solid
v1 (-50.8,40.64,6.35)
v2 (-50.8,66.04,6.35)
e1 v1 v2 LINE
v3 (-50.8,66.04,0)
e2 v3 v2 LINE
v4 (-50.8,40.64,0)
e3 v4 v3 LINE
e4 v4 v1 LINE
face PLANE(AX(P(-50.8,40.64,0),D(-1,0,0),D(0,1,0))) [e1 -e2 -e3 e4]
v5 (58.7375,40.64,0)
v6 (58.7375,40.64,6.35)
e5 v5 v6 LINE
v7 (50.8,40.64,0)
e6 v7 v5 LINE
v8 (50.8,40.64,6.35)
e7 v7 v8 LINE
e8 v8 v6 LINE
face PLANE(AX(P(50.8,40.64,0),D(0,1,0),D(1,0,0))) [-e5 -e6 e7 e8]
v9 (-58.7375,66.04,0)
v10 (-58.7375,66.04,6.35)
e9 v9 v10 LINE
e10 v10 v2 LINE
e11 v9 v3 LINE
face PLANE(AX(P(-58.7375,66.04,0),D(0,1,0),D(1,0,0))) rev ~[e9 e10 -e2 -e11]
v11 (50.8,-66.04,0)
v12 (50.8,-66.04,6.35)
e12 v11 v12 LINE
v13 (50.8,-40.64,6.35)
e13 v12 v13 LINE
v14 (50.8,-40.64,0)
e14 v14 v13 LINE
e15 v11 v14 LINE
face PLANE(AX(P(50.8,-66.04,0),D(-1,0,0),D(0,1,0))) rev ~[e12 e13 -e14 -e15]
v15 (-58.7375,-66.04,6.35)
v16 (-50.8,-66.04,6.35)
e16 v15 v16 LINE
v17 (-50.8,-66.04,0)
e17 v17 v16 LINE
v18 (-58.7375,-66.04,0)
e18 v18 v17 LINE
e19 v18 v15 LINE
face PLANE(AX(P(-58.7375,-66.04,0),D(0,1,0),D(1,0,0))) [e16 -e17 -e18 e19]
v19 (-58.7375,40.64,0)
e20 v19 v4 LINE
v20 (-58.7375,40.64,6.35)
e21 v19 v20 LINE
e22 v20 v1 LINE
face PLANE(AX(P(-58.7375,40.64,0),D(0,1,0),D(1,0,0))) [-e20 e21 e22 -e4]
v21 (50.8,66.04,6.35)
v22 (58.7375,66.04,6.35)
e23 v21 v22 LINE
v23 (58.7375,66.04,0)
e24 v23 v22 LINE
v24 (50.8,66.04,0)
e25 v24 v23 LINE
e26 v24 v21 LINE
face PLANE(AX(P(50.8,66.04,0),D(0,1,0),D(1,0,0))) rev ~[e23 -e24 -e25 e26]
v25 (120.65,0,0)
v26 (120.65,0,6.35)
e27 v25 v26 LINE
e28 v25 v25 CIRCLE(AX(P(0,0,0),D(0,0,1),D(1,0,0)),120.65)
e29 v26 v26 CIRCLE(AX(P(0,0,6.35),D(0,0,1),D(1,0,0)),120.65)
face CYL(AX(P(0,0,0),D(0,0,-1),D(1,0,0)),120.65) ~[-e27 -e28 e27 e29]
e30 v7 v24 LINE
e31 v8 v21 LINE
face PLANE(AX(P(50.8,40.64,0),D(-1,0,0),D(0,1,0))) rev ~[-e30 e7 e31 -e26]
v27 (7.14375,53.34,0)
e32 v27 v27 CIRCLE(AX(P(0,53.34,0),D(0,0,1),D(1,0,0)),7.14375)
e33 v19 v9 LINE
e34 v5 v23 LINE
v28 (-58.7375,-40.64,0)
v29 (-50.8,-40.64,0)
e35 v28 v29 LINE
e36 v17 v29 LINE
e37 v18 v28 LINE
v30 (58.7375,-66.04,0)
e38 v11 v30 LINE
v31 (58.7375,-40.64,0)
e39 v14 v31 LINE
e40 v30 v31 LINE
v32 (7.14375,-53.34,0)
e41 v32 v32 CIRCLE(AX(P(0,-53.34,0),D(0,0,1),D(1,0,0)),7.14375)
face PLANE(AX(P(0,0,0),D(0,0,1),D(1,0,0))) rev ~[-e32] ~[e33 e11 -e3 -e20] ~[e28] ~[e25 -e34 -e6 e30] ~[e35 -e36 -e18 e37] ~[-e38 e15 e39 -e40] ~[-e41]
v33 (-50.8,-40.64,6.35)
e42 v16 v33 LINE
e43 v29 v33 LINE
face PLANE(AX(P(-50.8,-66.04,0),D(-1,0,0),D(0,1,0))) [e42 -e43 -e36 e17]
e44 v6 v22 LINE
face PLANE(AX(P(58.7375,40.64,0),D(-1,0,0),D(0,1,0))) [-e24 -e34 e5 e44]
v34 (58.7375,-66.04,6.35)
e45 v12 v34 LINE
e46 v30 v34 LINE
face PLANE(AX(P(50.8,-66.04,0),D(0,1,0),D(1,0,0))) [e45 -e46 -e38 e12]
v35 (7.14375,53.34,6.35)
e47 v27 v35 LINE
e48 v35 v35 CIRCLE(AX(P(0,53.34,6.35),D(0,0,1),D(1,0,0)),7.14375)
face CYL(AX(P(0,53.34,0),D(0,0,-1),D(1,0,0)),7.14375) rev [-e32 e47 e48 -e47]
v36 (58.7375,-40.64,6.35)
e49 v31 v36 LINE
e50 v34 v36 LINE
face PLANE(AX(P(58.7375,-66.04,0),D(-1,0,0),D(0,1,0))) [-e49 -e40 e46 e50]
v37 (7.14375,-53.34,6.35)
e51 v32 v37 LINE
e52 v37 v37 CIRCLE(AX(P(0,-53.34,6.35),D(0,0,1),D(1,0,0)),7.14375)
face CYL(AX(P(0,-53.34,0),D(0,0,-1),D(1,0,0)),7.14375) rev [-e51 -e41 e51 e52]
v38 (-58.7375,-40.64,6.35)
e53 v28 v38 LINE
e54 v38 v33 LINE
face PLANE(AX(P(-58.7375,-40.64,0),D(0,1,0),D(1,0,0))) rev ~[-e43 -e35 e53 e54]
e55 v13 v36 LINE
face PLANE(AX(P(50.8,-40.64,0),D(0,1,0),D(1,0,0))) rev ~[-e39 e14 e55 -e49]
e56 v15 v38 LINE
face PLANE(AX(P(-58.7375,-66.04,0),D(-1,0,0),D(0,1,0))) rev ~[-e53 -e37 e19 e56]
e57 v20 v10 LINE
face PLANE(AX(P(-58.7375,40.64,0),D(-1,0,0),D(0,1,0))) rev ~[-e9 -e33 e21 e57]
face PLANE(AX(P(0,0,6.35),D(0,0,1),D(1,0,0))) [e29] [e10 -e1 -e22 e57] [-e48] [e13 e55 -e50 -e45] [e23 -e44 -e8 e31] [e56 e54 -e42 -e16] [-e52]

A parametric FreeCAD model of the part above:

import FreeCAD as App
import Part
import Sketcher

V = App.Vector
Q = App.Units.Quantity

doc = App.newDocument("Part")
body = doc.addObject("PartDesign::Body", "Body")

# Sketch on XY plane
sketch1 = doc.addObject("Sketcher::SketchObject", "Sketch")
body.addObject(sketch1)
sketch1.AttachmentSupport = (doc.XY_Plane, [""])
sketch1.MapMode = "FlatFace"
sketch1.addGeometry([
    Part.Circle(V(0, 0, 0), V(0, 0, 1), 121),  # 0
    Part.LineSegment(V(-51, -66, 0), V(-59, -66, 0)),  # 1
    Part.LineSegment(V(-59, -66, 0), V(-59, -41, 0)),  # 2
    Part.LineSegment(V(-59, -41, 0), V(-51, -41, 0)),  # 3
    Part.LineSegment(V(-51, -41, 0), V(-51, -66, 0)),  # 4
    Part.Circle(V(0, -53, 0), V(0, 0, 1), 7),  # 5
    Part.LineSegment(V(59, -66, 0), V(51, -66, 0)),  # 6
    Part.LineSegment(V(51, -66, 0), V(51, -41, 0)),  # 7
    Part.LineSegment(V(51, -41, 0), V(59, -41, 0)),  # 8
    Part.LineSegment(V(59, -41, 0), V(59, -66, 0)),  # 9
    Part.LineSegment(V(-51, 41, 0), V(-59, 41, 0)),  # 10
    Part.LineSegment(V(-59, 41, 0), V(-59, 66, 0)),  # 11
    Part.LineSegment(V(-59, 66, 0), V(-51, 66, 0)),  # 12
    Part.LineSegment(V(-51, 66, 0), V(-51, 41, 0)),  # 13
    Part.Circle(V(0, 53, 0), V(0, 0, 1), 7),  # 14
    Part.LineSegment(V(59, 41, 0), V(51, 41, 0)),  # 15
    Part.LineSegment(V(51, 41, 0), V(51, 66, 0)),  # 16
    Part.LineSegment(V(51, 66, 0), V(59, 66, 0)),  # 17
    Part.LineSegment(V(59, 66, 0), V(59, 41, 0)),  # 18
], False)
sketch1.addConstraint([
    Sketcher.Constraint("Coincident", 1, 2, 2, 1),
    Sketcher.Constraint("Coincident", 2, 2, 3, 1),
    Sketcher.Constraint("Coincident", 3, 2, 4, 1),
    Sketcher.Constraint("Coincident", 4, 2, 1, 1),
    Sketcher.Constraint("Coincident", 6, 2, 7, 1),
    Sketcher.Constraint("Coincident", 7, 2, 8, 1),
    Sketcher.Constraint("Coincident", 8, 2, 9, 1),
    Sketcher.Constraint("Coincident", 9, 2, 6, 1),
    Sketcher.Constraint("Coincident", 10, 2, 11, 1),
    Sketcher.Constraint("Coincident", 11, 2, 12, 1),
    Sketcher.Constraint("Coincident", 12, 2, 13, 1),
    Sketcher.Constraint("Coincident", 13, 2, 10, 1),
    Sketcher.Constraint("Coincident", 15, 2, 16, 1),
    Sketcher.Constraint("Coincident", 16, 2, 17, 1),
    Sketcher.Constraint("Coincident", 17, 2, 18, 1),
    Sketcher.Constraint("Coincident", 18, 2, 15, 1),
    Sketcher.Constraint("Horizontal", 1),
    Sketcher.Constraint("Vertical", 2),
    Sketcher.Constraint("Horizontal", 3),
    Sketcher.Constraint("Vertical", 4),
    Sketcher.Constraint("Horizontal", 6),
    Sketcher.Constraint("Vertical", 7),
    Sketcher.Constraint("Horizontal", 8),
    Sketcher.Constraint("Vertical", 9),
    Sketcher.Constraint("Horizontal", 10),
    Sketcher.Constraint("Vertical", 11),
    Sketcher.Constraint("Horizontal", 12),
    Sketcher.Constraint("Vertical", 13),
    Sketcher.Constraint("Horizontal", 15),
    Sketcher.Constraint("Vertical", 16),
    Sketcher.Constraint("Horizontal", 17),
    Sketcher.Constraint("Vertical", 18),
    Sketcher.Constraint("Coincident", 0, 3, -1, 1),
    Sketcher.Constraint("Equal", 5, 14),
    Sketcher.Constraint("Symmetric", 5, 3, 14, 3, -1, 1),
    Sketcher.Constraint("Symmetric", 8, 2, 10, 2, -1, 1),
    Sketcher.Constraint("Symmetric", 6, 2, 12, 2, -1, 1),
    Sketcher.Constraint("Symmetric", 3, 2, 15, 2, -1, 1),
    Sketcher.Constraint("Symmetric", 1, 2, 17, 2, -1, 1),
    Sketcher.Constraint("Symmetric", 4, 2, 6, 2, -2),
    Sketcher.Constraint("Symmetric", 2, 2, 8, 2, -2),
    Sketcher.Constraint("PointOnObject", 5, 3, -2),
    Sketcher.Constraint("Diameter", 0, Q("9.5 in")),
    Sketcher.Constraint("DistanceY", 2, 1, 2, 2, Q("1 in")),
    Sketcher.Constraint("Diameter", 5, Q("0.5625 in")),
    Sketcher.Constraint("DistanceX", 3, 2, -1, 1, Q("2 in")),
    Sketcher.Constraint("DistanceY", 5, 3, -1, 1, Q("2.1 in")),
    Sketcher.Constraint("DistanceY", 1, 2, -1, 1, Q("2.6 in")),
    Sketcher.Constraint("DistanceX", 1, 2, 1, 1, Q("0.3125 in")),
])
pad1 = doc.addObject("PartDesign::Pad", "Pad")
body.addObject(pad1)
pad1.Profile = sketch1
pad1.Length = Q("0.25 in")

doc.recompute()
